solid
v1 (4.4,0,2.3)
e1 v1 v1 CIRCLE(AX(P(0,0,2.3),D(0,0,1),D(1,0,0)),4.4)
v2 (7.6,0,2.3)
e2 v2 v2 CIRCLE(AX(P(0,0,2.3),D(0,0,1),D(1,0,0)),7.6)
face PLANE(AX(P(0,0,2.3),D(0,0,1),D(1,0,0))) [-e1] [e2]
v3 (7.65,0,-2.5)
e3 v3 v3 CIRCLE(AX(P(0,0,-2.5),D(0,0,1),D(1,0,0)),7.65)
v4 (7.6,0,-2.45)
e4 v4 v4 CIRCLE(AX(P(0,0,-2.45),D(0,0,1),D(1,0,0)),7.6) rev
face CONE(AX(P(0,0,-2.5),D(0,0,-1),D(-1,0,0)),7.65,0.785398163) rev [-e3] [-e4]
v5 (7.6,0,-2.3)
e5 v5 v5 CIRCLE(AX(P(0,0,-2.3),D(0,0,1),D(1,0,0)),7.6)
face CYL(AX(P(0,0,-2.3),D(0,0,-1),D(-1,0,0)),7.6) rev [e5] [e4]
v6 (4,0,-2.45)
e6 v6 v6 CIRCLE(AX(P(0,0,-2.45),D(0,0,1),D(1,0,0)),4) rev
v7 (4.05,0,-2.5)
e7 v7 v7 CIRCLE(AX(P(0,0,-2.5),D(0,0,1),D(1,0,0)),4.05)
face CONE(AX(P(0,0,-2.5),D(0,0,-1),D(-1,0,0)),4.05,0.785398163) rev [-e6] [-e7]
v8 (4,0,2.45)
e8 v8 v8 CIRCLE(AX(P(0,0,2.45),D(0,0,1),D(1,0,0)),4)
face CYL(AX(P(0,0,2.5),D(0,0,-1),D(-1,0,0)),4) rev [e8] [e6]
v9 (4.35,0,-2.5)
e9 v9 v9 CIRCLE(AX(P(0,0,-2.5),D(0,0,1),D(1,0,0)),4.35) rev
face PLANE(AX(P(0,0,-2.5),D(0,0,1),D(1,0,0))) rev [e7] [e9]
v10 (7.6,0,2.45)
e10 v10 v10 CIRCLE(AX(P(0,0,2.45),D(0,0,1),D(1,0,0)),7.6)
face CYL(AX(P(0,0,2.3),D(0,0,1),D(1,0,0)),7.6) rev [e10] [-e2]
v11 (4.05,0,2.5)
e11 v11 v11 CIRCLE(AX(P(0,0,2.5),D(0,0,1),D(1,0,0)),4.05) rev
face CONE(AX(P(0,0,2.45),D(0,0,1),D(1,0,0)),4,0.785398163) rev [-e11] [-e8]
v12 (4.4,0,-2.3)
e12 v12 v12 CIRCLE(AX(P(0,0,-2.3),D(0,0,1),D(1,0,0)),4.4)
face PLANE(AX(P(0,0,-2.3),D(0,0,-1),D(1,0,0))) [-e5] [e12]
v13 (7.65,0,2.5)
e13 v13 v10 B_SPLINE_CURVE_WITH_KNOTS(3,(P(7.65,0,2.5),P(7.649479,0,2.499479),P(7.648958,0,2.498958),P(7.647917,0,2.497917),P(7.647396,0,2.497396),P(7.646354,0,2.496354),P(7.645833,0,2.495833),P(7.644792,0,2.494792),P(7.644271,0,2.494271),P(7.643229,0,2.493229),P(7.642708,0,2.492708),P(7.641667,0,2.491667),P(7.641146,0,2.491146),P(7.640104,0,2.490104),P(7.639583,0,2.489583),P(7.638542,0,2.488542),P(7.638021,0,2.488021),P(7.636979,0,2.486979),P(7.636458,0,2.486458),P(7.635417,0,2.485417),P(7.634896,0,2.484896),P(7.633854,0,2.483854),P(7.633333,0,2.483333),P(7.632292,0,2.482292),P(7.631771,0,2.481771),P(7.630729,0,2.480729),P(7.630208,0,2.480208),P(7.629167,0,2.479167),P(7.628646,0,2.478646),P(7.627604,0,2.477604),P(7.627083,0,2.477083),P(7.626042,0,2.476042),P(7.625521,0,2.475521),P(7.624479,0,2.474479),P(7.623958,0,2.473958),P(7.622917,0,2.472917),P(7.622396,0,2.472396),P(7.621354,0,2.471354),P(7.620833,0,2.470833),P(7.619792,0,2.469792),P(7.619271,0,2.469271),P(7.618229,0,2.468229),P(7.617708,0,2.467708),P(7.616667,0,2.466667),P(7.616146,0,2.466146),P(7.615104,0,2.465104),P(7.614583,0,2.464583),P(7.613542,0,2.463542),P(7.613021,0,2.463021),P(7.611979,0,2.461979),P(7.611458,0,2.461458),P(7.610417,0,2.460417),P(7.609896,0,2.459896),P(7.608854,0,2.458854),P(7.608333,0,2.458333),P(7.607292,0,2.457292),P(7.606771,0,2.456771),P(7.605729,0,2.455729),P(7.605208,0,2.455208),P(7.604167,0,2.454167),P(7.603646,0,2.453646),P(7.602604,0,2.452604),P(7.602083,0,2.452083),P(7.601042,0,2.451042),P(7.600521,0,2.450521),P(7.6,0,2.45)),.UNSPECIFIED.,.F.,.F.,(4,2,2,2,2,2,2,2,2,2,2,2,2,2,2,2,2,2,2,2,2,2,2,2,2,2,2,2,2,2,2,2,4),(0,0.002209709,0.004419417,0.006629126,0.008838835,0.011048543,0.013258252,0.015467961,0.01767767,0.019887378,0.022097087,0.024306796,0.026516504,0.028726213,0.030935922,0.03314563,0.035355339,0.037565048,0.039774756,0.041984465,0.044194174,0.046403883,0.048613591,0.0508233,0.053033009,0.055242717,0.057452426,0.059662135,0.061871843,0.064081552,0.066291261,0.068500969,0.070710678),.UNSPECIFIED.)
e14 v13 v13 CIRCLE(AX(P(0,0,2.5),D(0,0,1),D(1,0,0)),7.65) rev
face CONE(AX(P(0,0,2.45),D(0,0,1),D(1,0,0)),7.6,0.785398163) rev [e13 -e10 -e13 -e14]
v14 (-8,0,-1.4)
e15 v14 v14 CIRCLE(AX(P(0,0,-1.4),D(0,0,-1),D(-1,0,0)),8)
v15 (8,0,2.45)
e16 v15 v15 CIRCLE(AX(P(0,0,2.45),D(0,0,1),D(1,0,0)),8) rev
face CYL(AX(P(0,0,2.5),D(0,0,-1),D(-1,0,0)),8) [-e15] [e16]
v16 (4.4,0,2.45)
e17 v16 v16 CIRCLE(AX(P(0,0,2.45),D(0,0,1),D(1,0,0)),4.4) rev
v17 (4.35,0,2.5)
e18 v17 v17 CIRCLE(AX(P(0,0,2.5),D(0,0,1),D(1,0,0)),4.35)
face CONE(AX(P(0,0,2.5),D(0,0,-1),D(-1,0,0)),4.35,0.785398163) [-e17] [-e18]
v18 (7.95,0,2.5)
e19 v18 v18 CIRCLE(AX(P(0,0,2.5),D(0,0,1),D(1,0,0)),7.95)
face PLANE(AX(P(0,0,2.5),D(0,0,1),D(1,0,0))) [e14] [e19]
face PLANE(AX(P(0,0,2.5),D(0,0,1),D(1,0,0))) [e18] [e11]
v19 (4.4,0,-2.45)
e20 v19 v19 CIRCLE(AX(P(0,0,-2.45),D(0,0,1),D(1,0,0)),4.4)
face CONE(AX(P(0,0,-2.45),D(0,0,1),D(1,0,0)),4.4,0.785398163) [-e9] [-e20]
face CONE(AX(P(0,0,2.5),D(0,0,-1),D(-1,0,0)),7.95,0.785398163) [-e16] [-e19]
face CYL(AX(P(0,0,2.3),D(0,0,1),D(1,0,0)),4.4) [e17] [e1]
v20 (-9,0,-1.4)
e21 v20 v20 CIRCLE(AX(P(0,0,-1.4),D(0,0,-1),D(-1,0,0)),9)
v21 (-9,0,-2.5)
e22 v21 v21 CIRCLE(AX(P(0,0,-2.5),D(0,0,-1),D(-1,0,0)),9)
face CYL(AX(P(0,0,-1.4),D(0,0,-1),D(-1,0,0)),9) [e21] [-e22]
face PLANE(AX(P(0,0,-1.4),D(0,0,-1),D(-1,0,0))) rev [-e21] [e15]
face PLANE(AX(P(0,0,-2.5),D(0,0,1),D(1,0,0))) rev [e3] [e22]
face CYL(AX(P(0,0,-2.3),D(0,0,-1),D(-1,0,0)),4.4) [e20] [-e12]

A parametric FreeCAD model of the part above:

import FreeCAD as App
import Part
import Sketcher
from FreeCAD import Vector
Q = App.Units.Quantity


def edges_at(feature, points):
    """Names of the edges that pass closest to the given points."""
    edges = feature.Shape.Edges
    near = lambda p: min(range(len(edges)), key=lambda i: edges[i].distToShape(Part.Vertex(*p))[0])
    return sorted({f"Edge{near(p) + 1}" for p in points})

doc = App.newDocument("Part")
params = doc.addObject("Spreadsheet::Sheet", "Params")
for row, (alias, value) in enumerate([
    ("sketch1_diameter", "16 mm"),
    ("sketch1_diameter2", "8 mm"),
    ("pad1_length", "5 mm"),
    ("sketch2_diameter", "18 mm"),
    ("sketch2_diameter2", "8 mm"),
    ("pad2_length", "1.1 mm"),
    ("sketch3_diameter", "15.2 mm"),
    ("sketch3_diameter2", "8.8 mm"),
    ("pocket1_length", "0.2 mm"),
    ("chamfer_size", "0.05 mm"),
], start=1):
    params.set(f"A{row}", alias)
    params.set(f"B{row}", "=" + value)
    params.setAlias(f"B{row}", alias)

body = doc.addObject("PartDesign::Body", "Body")

# Sketch on XY plane
sketch1 = body.newObject("Sketcher::SketchObject", "Sketch")
sketch1.AttachmentSupport = (doc.getObject("XY_Plane"), [""])
sketch1.MapMode = "FlatFace"
sketch1.addGeometry([
    Part.Circle(Vector(0, 0, 0), Vector(0, 0, 1), 8),
    Part.Circle(Vector(0, 0, 0), Vector(0, 0, 1), 4),
], False)
sketch1.addConstraint([
    Sketcher.Constraint("Coincident", 0, 3, -1, 1),
    Sketcher.Constraint("Coincident", 1, 3, -1, 1),
    Sketcher.Constraint("Diameter", 0, Q("16 mm")),
    Sketcher.Constraint("Diameter", 1, Q("8 mm")),
])
sketch1.setExpression("Constraints[2]", "Params.sketch1_diameter")
sketch1.setExpression("Constraints[3]", "Params.sketch1_diameter2")
pad1 = body.newObject("PartDesign::Pad", "Pad")
pad1.Profile = sketch1
pad1.setExpression("Length", "Params.pad1_length")
pad1.Midplane = True

# Sketch on XY plane
sketch2 = body.newObject("Sketcher::SketchObject", "Sketch001")
sketch2.AttachmentSupport = (doc.getObject("XY_Plane"), [""])
sketch2.MapMode = "FlatFace"
sketch2.AttachmentOffset = App.Placement(Vector(0, 0, -2.5), App.Rotation())
sketch2.addGeometry([
    Part.Circle(Vector(0, 0, 0), Vector(0, 0, 1), 9),
    Part.Circle(Vector(0, 0, 0), Vector(0, 0, 1), 4),
], False)
sketch2.addConstraint([
    Sketcher.Constraint("Coincident", 0, 3, -1, 1),
    Sketcher.Constraint("Coincident", 1, 3, -1, 1),
    Sketcher.Constraint("Diameter", 0, Q("18 mm")),
    Sketcher.Constraint("Diameter", 1, Q("8 mm")),
])
sketch2.setExpression("Constraints[2]", "Params.sketch2_diameter")
sketch2.setExpression("Constraints[3]", "Params.sketch2_diameter2")
pad2 = body.newObject("PartDesign::Pad", "Pad001")
pad2.Profile = sketch2
pad2.setExpression("Length", "Params.pad2_length")

# Sketch on XY plane
sketch3 = body.newObject("Sketcher::SketchObject", "Sketch002")
sketch3.AttachmentSupport = (doc.getObject("XY_Plane"), [""])
sketch3.MapMode = "FlatFace"
sketch3.AttachmentOffset = App.Placement(Vector(0, 0, 2.5), App.Rotation())
sketch3.addGeometry([
    Part.Circle(Vector(0, 0, 0), Vector(0, 0, 1), 7.6),
    Part.Circle(Vector(0, 0, 0), Vector(0, 0, 1), 4.4),
], False)
sketch3.addConstraint([
    Sketcher.Constraint("Coincident", 0, 3, -1, 1),
    Sketcher.Constraint("Coincident", 1, 3, -1, 1),
    Sketcher.Constraint("Diameter", 0, Q("15.2 mm")),
    Sketcher.Constraint("Diameter", 1, Q("8.8 mm")),
])
sketch3.setExpression("Constraints[2]", "Params.sketch3_diameter")
sketch3.setExpression("Constraints[3]", "Params.sketch3_diameter2")
pocket1 = body.newObject("PartDesign::Pocket", "Pocket")
pocket1.Profile = sketch3
pocket1.setExpression("Length", "Params.pocket1_length")
doc.recompute()

mirrored = body.newObject("PartDesign::Mirrored", "Mirrored")
mirrored.Originals = [pocket1]
mirrored.MirrorPlane = (doc.getObject("XY_Plane"), [""])
body.Tip = mirrored
doc.recompute()

chamfer = body.newObject("PartDesign::Chamfer", "Chamfer")
chamfer.Base = (mirrored, edges_at(mirrored, [
    (-7.6, 0, 2.5),
    (-4.4, 0, 2.5),
    (-4.4, 0, -2.5),
    (-7.6, 0, -2.5),
    (-8, 0, 2.5),
    (-4, 0, -2.5),
    (-4, 0, 2.5),
]))
chamfer.setExpression("Size", "Params.chamfer_size")

doc.recompute()
